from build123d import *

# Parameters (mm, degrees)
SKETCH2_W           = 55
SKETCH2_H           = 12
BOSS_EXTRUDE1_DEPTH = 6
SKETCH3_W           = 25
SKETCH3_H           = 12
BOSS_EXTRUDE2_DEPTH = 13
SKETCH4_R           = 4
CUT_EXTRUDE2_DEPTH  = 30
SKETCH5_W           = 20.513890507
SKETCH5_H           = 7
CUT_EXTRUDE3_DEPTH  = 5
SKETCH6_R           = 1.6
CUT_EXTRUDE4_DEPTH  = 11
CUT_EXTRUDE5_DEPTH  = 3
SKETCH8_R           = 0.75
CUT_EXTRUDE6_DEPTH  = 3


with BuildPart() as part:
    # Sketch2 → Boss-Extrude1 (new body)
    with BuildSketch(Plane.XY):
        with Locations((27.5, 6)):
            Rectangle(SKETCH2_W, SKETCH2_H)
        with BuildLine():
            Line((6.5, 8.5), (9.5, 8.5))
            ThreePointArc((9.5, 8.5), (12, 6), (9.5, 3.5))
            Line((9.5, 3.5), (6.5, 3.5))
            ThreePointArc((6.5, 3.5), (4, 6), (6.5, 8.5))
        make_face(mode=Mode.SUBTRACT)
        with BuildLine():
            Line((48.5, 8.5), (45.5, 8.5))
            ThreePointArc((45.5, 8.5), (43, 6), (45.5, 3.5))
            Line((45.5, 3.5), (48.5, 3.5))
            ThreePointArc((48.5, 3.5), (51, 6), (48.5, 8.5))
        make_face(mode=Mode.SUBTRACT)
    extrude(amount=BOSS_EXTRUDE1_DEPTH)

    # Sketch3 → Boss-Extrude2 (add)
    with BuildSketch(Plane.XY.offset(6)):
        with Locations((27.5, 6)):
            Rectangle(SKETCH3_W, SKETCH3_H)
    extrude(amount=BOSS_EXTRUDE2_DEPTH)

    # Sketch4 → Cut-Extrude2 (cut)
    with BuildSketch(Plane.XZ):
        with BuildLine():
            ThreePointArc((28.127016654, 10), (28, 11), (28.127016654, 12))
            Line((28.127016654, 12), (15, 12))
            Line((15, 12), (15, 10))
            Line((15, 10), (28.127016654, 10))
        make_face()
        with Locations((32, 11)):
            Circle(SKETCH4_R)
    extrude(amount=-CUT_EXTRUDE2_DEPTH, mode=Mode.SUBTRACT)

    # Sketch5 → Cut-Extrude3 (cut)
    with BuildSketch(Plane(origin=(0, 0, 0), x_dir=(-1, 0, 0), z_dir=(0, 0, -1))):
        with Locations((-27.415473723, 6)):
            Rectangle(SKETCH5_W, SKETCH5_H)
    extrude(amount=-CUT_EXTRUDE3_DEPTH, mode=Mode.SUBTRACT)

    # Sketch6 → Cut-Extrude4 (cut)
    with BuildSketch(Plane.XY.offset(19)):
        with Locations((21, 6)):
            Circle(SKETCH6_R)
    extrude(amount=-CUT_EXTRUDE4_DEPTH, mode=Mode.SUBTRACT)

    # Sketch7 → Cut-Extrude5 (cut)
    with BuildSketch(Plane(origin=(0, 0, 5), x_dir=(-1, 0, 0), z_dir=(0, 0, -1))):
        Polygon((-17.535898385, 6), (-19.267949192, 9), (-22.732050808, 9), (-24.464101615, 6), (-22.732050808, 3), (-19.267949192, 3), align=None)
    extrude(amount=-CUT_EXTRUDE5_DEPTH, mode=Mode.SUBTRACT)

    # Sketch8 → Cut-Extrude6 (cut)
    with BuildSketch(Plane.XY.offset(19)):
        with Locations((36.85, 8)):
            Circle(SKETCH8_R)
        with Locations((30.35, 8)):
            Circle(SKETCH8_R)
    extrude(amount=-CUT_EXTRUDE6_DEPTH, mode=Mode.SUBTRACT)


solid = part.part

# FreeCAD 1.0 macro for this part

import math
import FreeCAD as App
import Part
import Sketcher

V = App.Vector
Q = App.Units.Quantity


def add_polygon(sketch, points):
    """Adds a closed chain of lines whose ends are joined by coincident constraints."""
    first, n = sketch.GeometryCount, len(points)
    for a, b in zip(points, points[1:] + points[:1]):
        sketch.addGeometry(Part.LineSegment(App.Vector(*a, 0), App.Vector(*b, 0)), False)
    for i in range(n):
        sketch.addConstraint(Sketcher.Constraint("Coincident", first + i, 2, first + (i + 1) % n, 1))

doc = App.newDocument("Part")
body = doc.addObject("PartDesign::Body", "Body")

sketch1 = body.newObject("Sketcher::SketchObject", "Sketch")
sketch1.AttachmentSupport = (doc.getObject("XY_Plane"), [""])
sketch1.MapMode = "FlatFace"
add_polygon(sketch1, [(0, 12), (0, 0), (55, 0), (55, 12)])
sketch1.addGeometry(Part.ArcOfCircle(Part.Circle(V(6.5, 6, 0), V(0, 0, 1), 2.5), math.radians(90), math.radians(270)), False)
sketch1.addGeometry(Part.LineSegment(V(6.5, 8.5, 0), V(9.5, 8.5, 0)), False)
sketch1.addGeometry(Part.ArcOfCircle(Part.Circle(V(9.5, 6, 0), V(0, 0, 1), 2.5), math.radians(-90), math.radians(90)), False)
sketch1.addGeometry(Part.LineSegment(V(9.5, 3.5, 0), V(6.5, 3.5, 0)), False)
sketch1.addGeometry(Part.LineSegment(V(45.5, 8.5, 0), V(48.5, 8.5, 0)), False)
sketch1.addGeometry(Part.ArcOfCircle(Part.Circle(V(48.5, 6, 0), V(0, 0, 1), 2.5), math.radians(-90), math.radians(90)), False)
sketch1.addGeometry(Part.LineSegment(V(48.5, 3.5, 0), V(45.5, 3.5, 0)), False)
sketch1.addGeometry(Part.ArcOfCircle(Part.Circle(V(45.5, 6, 0), V(0, 0, 1), 2.5), math.radians(90), math.radians(270)), False)
sketch1.addConstraint([
    Sketcher.Constraint("Tangent", 4, 1, 5, 1),
    Sketcher.Constraint("Tangent", 5, 2, 6, 2),
    Sketcher.Constraint("Tangent", 6, 1, 7, 1),
    Sketcher.Constraint("Tangent", 7, 2, 4, 2),
    Sketcher.Constraint("Tangent", 8, 2, 9, 2),
    Sketcher.Constraint("Tangent", 9, 1, 10, 1),
    Sketcher.Constraint("Tangent", 10, 2, 11, 2),
    Sketcher.Constraint("Tangent", 11, 1, 8, 1),
    Sketcher.Constraint("Vertical", 0),
    Sketcher.Constraint("Horizontal", 1),
    Sketcher.Constraint("Vertical", 2),
    Sketcher.Constraint("Horizontal", 3),
    Sketcher.Constraint("Horizontal", 5),
    Sketcher.Constraint("Horizontal", 7),
    Sketcher.Constraint("Horizontal", 8),
    Sketcher.Constraint("Horizontal", 10),
    Sketcher.Constraint("Coincident", 0, 2, -1, 1),
    Sketcher.Constraint("Equal", 6, 9),
    Sketcher.Constraint("Horizontal", 6, 3, 9, 3),
    Sketcher.Constraint("Equal", 7, 8),
    Sketcher.Constraint("Radius", 4, 2.5),
    Sketcher.Constraint("DistanceX", 1, 1, 1, 2, 55.0),
    Sketcher.Constraint("DistanceX", 5, 1, 5, 2, 3.0),
    Sketcher.Constraint("DistanceY", 0, 2, 0, 1, 12.0),
    Sketcher.Constraint("DistanceY", -1, 1, 4, 3, 6.0),
    Sketcher.Constraint("DistanceX", 6, 3, 9, 3, 39.0),
    Sketcher.Constraint("DistanceX", -1, 1, 4, 3, 6.5),
])
pad1 = body.newObject("PartDesign::Pad", "Pad")
pad1.Profile = sketch1
pad1.Length = 6

sketch2 = body.newObject("Sketcher::SketchObject", "Sketch001")
sketch2.AttachmentSupport = (doc.getObject("XY_Plane"), [""])
sketch2.MapMode = "FlatFace"
sketch2.AttachmentOffset = App.Placement(V(0, 0, 6), App.Rotation())
add_polygon(sketch2, [(15, 12), (15, 0), (40, 0), (40, 12)])
sketch2.addConstraint([
    Sketcher.Constraint("Vertical", 0),
    Sketcher.Constraint("Horizontal", 1),
    Sketcher.Constraint("Vertical", 2),
    Sketcher.Constraint("Horizontal", 3),
    Sketcher.Constraint("PointOnObject", 0, 2, -1),
    Sketcher.Constraint("DistanceX", 1, 1, 1, 2, 25.0),
    Sketcher.Constraint("DistanceY", 0, 2, 0, 1, 12.0),
    Sketcher.Constraint("DistanceX", -1, 1, 0, 2, 15.0),
])
pad2 = body.newObject("PartDesign::Pad", "Pad001")
pad2.Profile = sketch2
pad2.Length = 13

sketch3 = body.newObject("Sketcher::SketchObject", "Sketch002")
sketch3.AttachmentSupport = (doc.getObject("XZ_Plane"), [""])
sketch3.MapMode = "FlatFace"
sketch3.addGeometry([
    Part.LineSegment(V(28.1, 12, 0), V(15, 12, 0)),
    Part.LineSegment(V(15, 12, 0), V(15, 10, 0)),
    Part.LineSegment(V(15, 10, 0), V(28.1, 10, 0)),
    Part.ArcOfCircle(Part.Circle(V(32, 11, 0), V(0, 0, 1), 4), math.radians(-166), math.radians(166)),
], False)
sketch3.addConstraint([
    Sketcher.Constraint("Coincident", 0, 2, 1, 1),
    Sketcher.Constraint("Coincident", 1, 2, 2, 1),
    Sketcher.Constraint("Coincident", 2, 2, 3, 1),
    Sketcher.Constraint("Coincident", 3, 2, 0, 1),
    Sketcher.Constraint("Horizontal", 0),
    Sketcher.Constraint("Vertical", 1),
    Sketcher.Constraint("Horizontal", 2),
    Sketcher.Constraint("Vertical", 2, 2, 3, 2),
    Sketcher.Constraint("Radius", 3, 4.0),
    Sketcher.Constraint("DistanceY", 1, 2, 1, 1, 2.0),
    Sketcher.Constraint("DistanceX", -1, 1, 3, 3, 32.0),
    Sketcher.Constraint("DistanceY", -1, 1, 3, 3, 11.0),
    Sketcher.Constraint("DistanceX", -1, 1, 0, 2, 15.0),
])
pocket1 = body.newObject("PartDesign::Pocket", "Pocket")
pocket1.Profile = sketch3
pocket1.Length = 30

sketch4 = body.newObject("Sketcher::SketchObject", "Sketch003")
sketch4.AttachmentSupport = (doc.getObject("XY_Plane"), [""])
sketch4.MapMode = "FlatFace"
add_polygon(sketch4, [(38, 10), (38, 2), (17, 2), (17, 10)])
sketch4.addConstraint([
    Sketcher.Constraint("Vertical", 0),
    Sketcher.Constraint("Horizontal", 1),
    Sketcher.Constraint("Vertical", 2),
    Sketcher.Constraint("Horizontal", 3),
    Sketcher.Constraint("DistanceY", 0, 2, 0, 1, 7.0),
    Sketcher.Constraint("DistanceY", -1, 1, 0, 2, 2.5),
    Sketcher.Constraint("DistanceX", 1, 2, 1, 1, 20.513891),
    Sketcher.Constraint("DistanceX", -1, 1, 0, 2, 37.672419),
])
pocket2 = body.newObject("PartDesign::Pocket", "Pocket001")
pocket2.Profile = sketch4
pocket2.Length = 5
pocket2.Reversed = True

sketch5 = body.newObject("Sketcher::SketchObject", "Sketch004")
sketch5.AttachmentSupport = (doc.getObject("XY_Plane"), [""])
sketch5.MapMode = "FlatFace"
sketch5.AttachmentOffset = App.Placement(V(0, 0, 19), App.Rotation())
sketch5.addGeometry(Part.Circle(V(21, 6, 0), V(0, 0, 1), 1.6), False)
sketch5.addConstraint([
    Sketcher.Constraint("Diameter", 0, 3.2),
    Sketcher.Constraint("DistanceX", -1, 1, 0, 3, 21.0),
    Sketcher.Constraint("DistanceY", -1, 1, 0, 3, 6.0),
])
pocket3 = body.newObject("PartDesign::Pocket", "Pocket002")
pocket3.Profile = sketch5
pocket3.Length = 11

sketch6 = body.newObject("Sketcher::SketchObject", "Sketch005")
sketch6.AttachmentSupport = (doc.getObject("XY_Plane"), [""])
sketch6.MapMode = "FlatFace"
sketch6.AttachmentOffset = App.Placement(V(0, 0, 5), App.Rotation())
add_polygon(sketch6, [(17.5, 6), (19.3, 9), (22.7, 9), (24.5, 6), (22.7, 3), (19.3, 3)])
sketch6.addConstraint([
    Sketcher.Constraint("Horizontal", 1),
    Sketcher.Constraint("Horizontal", 4),
    Sketcher.Constraint("Parallel", 0, 3),
    Sketcher.Constraint("Parallel", 2, 5),
    Sketcher.Constraint("Horizontal", 2, 2, 5, 2),
    Sketcher.Constraint("Vertical", 1, 2, 3, 2),
    Sketcher.Constraint("Vertical", 0, 2, 4, 2),
    Sketcher.Constraint("Angle", 0, Q("60 deg")),
    Sketcher.Constraint("DistanceY", -1, 1, 0, 2, 9.0),
    Sketcher.Constraint("DistanceY", -1, 1, 2, 2, 6.0),
    Sketcher.Constraint("DistanceX", 1, 1, 1, 2, 3.464102),
    Sketcher.Constraint("DistanceX", -1, 1, 2, 2, 24.464102),
])
pocket4 = body.newObject("PartDesign::Pocket", "Pocket003")
pocket4.Profile = sketch6
pocket4.Length = 3
pocket4.Reversed = True

sketch7 = body.newObject("Sketcher::SketchObject", "Sketch006")
sketch7.AttachmentSupport = (doc.getObject("XY_Plane"), [""])
sketch7.MapMode = "FlatFace"
sketch7.AttachmentOffset = App.Placement(V(0, 0, 19), App.Rotation())
sketch7.addGeometry([
    Part.Circle(V(36.9, 8, 0), V(0, 0, 1), 0.8),
    Part.Circle(V(30.4, 8, 0), V(0, 0, 1), 0.8),
], False)
sketch7.addConstraint([
    Sketcher.Constraint("Equal", 0, 1),
    Sketcher.Constraint("Horizontal", 0, 3, 1, 3),
    Sketcher.Constraint("Diameter", 0, 1.5),
    Sketcher.Constraint("DistanceY", -1, 1, 0, 3, 8.0),
    Sketcher.Constraint("DistanceX", 1, 3, 0, 3, 6.5),
    Sketcher.Constraint("DistanceX", -1, 1, 0, 3, 36.85),
])
pocket5 = body.newObject("PartDesign::Pocket", "Pocket004")
pocket5.Profile = sketch7
pocket5.Length = 3

doc.recompute()
